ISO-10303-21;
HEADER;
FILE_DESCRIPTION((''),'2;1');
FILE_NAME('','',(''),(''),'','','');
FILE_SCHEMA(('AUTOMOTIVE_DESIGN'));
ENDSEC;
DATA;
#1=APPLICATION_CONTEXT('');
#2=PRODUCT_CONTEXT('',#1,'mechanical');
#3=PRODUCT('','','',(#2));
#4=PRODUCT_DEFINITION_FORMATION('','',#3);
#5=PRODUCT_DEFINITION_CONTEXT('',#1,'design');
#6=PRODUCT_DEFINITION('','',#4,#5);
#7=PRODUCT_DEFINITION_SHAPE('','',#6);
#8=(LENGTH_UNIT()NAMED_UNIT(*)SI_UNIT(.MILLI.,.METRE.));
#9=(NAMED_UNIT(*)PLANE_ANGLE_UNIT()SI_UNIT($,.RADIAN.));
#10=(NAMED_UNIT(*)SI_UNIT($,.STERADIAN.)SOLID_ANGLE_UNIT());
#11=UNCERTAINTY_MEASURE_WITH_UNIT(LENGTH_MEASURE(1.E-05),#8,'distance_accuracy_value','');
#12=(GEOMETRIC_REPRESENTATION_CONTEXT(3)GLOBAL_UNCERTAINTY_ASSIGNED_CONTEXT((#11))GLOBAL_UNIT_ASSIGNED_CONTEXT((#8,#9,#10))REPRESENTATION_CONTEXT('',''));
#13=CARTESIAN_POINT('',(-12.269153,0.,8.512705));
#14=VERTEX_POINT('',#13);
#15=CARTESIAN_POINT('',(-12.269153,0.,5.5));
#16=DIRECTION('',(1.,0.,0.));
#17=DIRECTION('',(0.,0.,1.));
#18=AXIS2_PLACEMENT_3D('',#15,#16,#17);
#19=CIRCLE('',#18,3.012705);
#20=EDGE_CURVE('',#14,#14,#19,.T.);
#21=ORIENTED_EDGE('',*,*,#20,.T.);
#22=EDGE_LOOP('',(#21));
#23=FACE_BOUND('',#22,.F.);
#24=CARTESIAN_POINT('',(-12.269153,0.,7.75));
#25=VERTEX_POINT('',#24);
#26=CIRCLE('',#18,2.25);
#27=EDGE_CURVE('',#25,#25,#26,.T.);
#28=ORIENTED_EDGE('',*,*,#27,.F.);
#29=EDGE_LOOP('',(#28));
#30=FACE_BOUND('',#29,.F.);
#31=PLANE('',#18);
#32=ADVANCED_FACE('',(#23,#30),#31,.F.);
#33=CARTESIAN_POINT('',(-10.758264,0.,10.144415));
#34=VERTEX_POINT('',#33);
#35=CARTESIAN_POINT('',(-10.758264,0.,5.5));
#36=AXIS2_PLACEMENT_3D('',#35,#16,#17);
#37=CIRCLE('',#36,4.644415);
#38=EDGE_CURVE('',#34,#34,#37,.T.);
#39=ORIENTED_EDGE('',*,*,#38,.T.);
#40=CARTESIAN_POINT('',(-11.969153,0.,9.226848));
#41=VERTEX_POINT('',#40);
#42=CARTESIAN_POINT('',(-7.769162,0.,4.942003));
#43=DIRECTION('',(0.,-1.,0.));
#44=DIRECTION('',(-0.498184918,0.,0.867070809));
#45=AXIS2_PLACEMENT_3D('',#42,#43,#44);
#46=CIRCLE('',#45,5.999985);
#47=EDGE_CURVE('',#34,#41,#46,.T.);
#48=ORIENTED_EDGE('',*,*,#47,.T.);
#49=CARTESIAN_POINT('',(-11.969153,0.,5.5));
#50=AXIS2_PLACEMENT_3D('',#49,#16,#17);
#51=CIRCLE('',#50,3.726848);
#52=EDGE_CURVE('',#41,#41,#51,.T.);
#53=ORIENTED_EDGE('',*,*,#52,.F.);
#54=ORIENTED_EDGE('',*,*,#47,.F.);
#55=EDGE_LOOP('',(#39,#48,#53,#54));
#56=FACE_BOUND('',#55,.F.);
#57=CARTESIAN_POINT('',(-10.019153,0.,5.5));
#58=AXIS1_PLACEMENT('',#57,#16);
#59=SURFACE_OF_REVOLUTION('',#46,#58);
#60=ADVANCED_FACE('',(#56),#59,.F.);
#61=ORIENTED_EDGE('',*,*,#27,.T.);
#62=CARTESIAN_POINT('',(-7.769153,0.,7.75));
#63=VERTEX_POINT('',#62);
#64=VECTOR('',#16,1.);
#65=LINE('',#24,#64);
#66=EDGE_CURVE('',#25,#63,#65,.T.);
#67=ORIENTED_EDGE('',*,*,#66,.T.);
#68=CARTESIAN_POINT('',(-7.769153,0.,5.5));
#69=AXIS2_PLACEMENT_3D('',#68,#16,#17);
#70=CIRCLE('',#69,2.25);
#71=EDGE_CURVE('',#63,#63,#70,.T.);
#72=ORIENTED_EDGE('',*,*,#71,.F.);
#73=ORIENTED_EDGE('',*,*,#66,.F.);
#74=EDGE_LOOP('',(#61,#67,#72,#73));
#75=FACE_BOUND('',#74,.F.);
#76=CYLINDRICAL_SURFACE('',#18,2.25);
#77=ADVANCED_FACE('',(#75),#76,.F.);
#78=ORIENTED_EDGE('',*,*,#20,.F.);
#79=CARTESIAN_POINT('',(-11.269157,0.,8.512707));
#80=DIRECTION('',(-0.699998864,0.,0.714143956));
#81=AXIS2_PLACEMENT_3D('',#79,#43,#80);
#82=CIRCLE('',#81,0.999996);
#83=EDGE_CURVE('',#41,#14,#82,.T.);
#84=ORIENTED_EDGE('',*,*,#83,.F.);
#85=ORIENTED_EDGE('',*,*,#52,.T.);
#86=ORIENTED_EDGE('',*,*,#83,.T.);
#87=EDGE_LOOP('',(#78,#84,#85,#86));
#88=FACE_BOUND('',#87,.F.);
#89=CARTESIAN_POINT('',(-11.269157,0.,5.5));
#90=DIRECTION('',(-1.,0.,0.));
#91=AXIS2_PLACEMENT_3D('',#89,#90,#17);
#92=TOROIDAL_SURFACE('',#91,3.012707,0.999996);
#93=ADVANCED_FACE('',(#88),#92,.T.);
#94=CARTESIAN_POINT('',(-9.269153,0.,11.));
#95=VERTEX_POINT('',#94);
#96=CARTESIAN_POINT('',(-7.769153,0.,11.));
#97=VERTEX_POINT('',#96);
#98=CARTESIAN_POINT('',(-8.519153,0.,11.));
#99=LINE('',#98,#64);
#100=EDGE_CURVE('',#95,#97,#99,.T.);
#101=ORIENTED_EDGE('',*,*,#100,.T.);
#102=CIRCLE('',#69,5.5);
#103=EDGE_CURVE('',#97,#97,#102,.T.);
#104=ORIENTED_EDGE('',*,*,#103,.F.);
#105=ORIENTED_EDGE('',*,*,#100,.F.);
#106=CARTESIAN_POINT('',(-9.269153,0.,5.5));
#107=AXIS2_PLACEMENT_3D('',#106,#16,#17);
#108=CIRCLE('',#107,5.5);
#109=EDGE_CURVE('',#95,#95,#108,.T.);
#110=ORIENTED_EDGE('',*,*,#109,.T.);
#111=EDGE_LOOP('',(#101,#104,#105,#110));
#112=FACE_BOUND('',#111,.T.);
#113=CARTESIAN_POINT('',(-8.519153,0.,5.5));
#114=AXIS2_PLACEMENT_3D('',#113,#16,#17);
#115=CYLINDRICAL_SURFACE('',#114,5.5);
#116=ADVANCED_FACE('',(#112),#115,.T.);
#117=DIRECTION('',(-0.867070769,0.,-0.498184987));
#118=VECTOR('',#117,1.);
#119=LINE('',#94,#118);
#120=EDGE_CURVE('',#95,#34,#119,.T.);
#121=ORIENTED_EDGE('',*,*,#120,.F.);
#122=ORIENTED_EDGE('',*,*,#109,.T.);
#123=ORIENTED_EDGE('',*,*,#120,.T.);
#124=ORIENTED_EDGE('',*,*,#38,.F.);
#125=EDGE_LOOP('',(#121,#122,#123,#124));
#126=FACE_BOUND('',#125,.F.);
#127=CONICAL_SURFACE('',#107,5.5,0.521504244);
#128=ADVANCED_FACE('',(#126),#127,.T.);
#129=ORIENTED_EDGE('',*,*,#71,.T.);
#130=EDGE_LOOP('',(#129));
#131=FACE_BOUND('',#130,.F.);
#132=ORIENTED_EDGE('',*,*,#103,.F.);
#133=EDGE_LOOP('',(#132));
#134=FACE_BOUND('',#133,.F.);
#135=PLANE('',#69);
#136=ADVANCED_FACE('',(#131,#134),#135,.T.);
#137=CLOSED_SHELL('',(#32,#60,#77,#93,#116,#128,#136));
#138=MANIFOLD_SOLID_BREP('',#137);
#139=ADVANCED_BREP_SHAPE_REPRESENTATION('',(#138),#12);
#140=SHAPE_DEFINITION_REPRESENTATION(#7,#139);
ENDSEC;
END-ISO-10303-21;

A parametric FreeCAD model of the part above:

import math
import FreeCAD as App
import Part
import Sketcher
from FreeCAD import Vector
Q = App.Units.Quantity

doc = App.newDocument("Part")
params = doc.addObject("Spreadsheet::Sheet", "Params")
for row, (alias, value) in enumerate([
    ("sketch1_width", "4.5 mm"),
    ("sketch1_width2", "1.5 mm"),
    ("sketch1_height", "3.25 mm"),
    ("revolution_angle", "360 deg"),
], start=1):
    params.set(f"A{row}", alias)
    params.set(f"B{row}", "=" + value)
    params.setAlias(f"B{row}", alias)

body = doc.addObject("PartDesign::Body", "Body")

sketch1 = doc.addObject("Sketcher::SketchObject", "Sketch")
body.addObject(sketch1)
sketch1.AttachmentSupport = (doc.XZ_Plane, [""])
sketch1.MapMode = "FlatFace"
sketch1.addGeometry([
    Part.LineSegment(Vector(-9.3, 11, 0), Vector(-10.8, 10.1, 0)),
    Part.ArcOfCircle(Part.Circle(Vector(-7.8, 4.9, 0), Vector(0, 0, 1), 6), math.radians(119.88), math.radians(134.43)),
    Part.ArcOfCircle(Part.Circle(Vector(-11.3, 8.5, 0), Vector(0, 0, 1), 1), math.radians(134), math.radians(180)),
    Part.LineSegment(Vector(-12.3, 8.5, 0), Vector(-12.3, 7.8, 0)),
    Part.LineSegment(Vector(-12.3, 7.8, 0), Vector(-7.8, 7.8, 0)),
    Part.LineSegment(Vector(-7.8, 7.8, 0), Vector(-7.8, 11, 0)),
    Part.LineSegment(Vector(-7.8, 11, 0), Vector(-9.3, 11, 0)),
], False)
sketch1.addGeometry(Part.LineSegment(Vector(-12.3, 5.5, 0), Vector(-7.8, 5.5, 0)), True)
sketch1.addConstraint([
    Sketcher.Constraint("Tangent", 0, 2, 1, 1),
    Sketcher.Constraint("Tangent", 1, 2, 2, 1),
    Sketcher.Constraint("Tangent", 2, 2, 3, 1),
    Sketcher.Constraint("Coincident", 3, 2, 4, 1),
    Sketcher.Constraint("Coincident", 4, 2, 5, 1),
    Sketcher.Constraint("Coincident", 5, 2, 6, 1),
    Sketcher.Constraint("Coincident", 6, 2, 0, 1),
    Sketcher.Constraint("Vertical", 3),
    Sketcher.Constraint("Horizontal", 4),
    Sketcher.Constraint("Vertical", 5),
    Sketcher.Constraint("Horizontal", 6),
    Sketcher.Constraint("Horizontal", 7),
    Sketcher.Constraint("Vertical", 3, 2, 7, 1),
    Sketcher.Constraint("Vertical", 5, 2, 7, 2),
    Sketcher.Constraint("DistanceX", 4, 1, 4, 2, 4.5),
    Sketcher.Constraint("DistanceX", 6, 2, 6, 1, 1.5),
    Sketcher.Constraint("DistanceY", -1, 1, 5, 2, 11.0),
    Sketcher.Constraint("DistanceY", 5, 1, 5, 2, 3.25),
    Sketcher.Constraint("DistanceY", -1, 1, 7, 1, 5.5),
    Sketcher.Constraint("Angle", 0, Q("-150.120008 deg")),
    Sketcher.Constraint("DistanceX", 2, 2, 1, 2, 0.3),
    Sketcher.Constraint("Radius", 1, 5.999985),
    Sketcher.Constraint("Radius", 2, 0.999996),
    Sketcher.Constraint("DistanceX", 1, 3, -1, 1, 7.769162),
])
sketch1.setExpression("Constraints[14]", "Params.sketch1_width")
sketch1.setExpression("Constraints[15]", "Params.sketch1_width2")
sketch1.setExpression("Constraints[17]", "Params.sketch1_height")
revolution = doc.addObject("PartDesign::Revolution", "Revolution")
body.addObject(revolution)
revolution.Profile = sketch1
revolution.ReferenceAxis = (sketch1, ["Axis0"])
revolution.setExpression("Angle", "Params.revolution_angle")

doc.recompute()
